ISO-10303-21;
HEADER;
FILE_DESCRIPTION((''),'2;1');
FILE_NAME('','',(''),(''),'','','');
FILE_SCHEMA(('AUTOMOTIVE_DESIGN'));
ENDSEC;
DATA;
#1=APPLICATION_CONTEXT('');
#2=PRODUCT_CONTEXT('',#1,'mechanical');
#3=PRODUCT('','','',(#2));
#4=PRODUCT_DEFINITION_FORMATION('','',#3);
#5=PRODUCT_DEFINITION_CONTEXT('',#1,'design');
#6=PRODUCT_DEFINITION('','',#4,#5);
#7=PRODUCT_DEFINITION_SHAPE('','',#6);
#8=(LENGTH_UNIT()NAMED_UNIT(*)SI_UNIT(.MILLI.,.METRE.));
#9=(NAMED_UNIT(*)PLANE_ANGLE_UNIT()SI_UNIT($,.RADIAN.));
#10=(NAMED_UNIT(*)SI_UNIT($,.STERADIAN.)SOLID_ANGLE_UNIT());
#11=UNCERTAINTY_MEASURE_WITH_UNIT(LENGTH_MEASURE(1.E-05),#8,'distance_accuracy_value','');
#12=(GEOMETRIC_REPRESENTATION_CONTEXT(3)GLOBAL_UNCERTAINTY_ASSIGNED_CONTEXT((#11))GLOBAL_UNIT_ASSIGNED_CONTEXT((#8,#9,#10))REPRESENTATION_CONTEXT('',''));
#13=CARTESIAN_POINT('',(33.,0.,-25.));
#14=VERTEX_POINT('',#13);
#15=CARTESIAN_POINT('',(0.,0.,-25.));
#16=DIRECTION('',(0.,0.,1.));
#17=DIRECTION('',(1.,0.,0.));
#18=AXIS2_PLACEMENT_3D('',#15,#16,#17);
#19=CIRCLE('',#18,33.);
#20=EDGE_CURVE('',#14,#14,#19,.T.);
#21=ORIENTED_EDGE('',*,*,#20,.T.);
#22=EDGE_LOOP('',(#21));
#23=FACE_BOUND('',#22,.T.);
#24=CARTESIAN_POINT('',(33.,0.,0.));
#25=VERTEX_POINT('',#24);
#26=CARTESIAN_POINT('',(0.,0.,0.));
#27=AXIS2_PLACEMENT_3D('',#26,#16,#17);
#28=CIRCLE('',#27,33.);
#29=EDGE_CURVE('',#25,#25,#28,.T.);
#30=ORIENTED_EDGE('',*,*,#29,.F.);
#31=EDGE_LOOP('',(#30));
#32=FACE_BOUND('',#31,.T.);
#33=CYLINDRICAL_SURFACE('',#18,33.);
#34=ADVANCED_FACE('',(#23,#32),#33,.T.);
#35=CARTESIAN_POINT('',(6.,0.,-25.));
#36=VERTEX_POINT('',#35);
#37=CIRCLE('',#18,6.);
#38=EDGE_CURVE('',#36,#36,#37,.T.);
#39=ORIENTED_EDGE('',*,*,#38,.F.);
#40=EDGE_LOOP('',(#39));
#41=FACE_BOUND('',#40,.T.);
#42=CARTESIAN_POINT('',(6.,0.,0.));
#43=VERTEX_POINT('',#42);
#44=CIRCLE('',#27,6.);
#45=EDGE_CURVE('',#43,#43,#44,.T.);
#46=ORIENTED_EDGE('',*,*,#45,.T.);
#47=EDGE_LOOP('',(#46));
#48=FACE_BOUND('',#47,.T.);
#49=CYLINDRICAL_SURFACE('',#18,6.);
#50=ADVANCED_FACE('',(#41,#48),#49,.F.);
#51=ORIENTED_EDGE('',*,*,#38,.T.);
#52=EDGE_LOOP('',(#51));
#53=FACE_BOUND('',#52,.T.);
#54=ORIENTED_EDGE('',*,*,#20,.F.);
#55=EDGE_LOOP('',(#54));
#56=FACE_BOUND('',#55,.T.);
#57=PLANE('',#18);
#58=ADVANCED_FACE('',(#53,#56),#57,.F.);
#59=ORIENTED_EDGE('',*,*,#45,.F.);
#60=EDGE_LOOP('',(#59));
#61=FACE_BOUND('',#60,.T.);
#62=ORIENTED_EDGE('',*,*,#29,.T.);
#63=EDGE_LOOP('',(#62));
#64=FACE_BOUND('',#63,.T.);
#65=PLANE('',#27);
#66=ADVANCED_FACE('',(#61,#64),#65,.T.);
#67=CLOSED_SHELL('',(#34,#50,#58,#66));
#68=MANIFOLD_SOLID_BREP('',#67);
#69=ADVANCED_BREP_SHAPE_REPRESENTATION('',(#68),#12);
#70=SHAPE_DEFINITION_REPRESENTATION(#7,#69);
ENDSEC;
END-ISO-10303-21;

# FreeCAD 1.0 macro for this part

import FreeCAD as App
import Part
import Sketcher

V = App.Vector

doc = App.newDocument("Part")
body = doc.addObject("PartDesign::Body", "Body")

# Sketch on XY plane
sketch1 = body.newObject("Sketcher::SketchObject", "Sketch")
sketch1.AttachmentSupport = (doc.getObject("XY_Plane"), [""])
sketch1.MapMode = "FlatFace"
sketch1.addGeometry(Part.Circle(V(0, 0, 0), V(0, 0, 1), 33), False)
sketch1.addGeometry(Part.Circle(V(0, 0, 0), V(0, 0, 1), 6), False)
sketch1.addConstraint(Sketcher.Constraint("Coincident", 0, 3, -1, 1))
sketch1.addConstraint(Sketcher.Constraint("Coincident", 1, 3, -1, 1))
sketch1.addConstraint(Sketcher.Constraint("Diameter", 0, 66.0))
sketch1.addConstraint(Sketcher.Constraint("Diameter", 1, 12.0))
pad1 = body.newObject("PartDesign::Pad", "Pad")
pad1.Profile = sketch1
pad1.Length = 25
pad1.Reversed = True

doc.recompute()
